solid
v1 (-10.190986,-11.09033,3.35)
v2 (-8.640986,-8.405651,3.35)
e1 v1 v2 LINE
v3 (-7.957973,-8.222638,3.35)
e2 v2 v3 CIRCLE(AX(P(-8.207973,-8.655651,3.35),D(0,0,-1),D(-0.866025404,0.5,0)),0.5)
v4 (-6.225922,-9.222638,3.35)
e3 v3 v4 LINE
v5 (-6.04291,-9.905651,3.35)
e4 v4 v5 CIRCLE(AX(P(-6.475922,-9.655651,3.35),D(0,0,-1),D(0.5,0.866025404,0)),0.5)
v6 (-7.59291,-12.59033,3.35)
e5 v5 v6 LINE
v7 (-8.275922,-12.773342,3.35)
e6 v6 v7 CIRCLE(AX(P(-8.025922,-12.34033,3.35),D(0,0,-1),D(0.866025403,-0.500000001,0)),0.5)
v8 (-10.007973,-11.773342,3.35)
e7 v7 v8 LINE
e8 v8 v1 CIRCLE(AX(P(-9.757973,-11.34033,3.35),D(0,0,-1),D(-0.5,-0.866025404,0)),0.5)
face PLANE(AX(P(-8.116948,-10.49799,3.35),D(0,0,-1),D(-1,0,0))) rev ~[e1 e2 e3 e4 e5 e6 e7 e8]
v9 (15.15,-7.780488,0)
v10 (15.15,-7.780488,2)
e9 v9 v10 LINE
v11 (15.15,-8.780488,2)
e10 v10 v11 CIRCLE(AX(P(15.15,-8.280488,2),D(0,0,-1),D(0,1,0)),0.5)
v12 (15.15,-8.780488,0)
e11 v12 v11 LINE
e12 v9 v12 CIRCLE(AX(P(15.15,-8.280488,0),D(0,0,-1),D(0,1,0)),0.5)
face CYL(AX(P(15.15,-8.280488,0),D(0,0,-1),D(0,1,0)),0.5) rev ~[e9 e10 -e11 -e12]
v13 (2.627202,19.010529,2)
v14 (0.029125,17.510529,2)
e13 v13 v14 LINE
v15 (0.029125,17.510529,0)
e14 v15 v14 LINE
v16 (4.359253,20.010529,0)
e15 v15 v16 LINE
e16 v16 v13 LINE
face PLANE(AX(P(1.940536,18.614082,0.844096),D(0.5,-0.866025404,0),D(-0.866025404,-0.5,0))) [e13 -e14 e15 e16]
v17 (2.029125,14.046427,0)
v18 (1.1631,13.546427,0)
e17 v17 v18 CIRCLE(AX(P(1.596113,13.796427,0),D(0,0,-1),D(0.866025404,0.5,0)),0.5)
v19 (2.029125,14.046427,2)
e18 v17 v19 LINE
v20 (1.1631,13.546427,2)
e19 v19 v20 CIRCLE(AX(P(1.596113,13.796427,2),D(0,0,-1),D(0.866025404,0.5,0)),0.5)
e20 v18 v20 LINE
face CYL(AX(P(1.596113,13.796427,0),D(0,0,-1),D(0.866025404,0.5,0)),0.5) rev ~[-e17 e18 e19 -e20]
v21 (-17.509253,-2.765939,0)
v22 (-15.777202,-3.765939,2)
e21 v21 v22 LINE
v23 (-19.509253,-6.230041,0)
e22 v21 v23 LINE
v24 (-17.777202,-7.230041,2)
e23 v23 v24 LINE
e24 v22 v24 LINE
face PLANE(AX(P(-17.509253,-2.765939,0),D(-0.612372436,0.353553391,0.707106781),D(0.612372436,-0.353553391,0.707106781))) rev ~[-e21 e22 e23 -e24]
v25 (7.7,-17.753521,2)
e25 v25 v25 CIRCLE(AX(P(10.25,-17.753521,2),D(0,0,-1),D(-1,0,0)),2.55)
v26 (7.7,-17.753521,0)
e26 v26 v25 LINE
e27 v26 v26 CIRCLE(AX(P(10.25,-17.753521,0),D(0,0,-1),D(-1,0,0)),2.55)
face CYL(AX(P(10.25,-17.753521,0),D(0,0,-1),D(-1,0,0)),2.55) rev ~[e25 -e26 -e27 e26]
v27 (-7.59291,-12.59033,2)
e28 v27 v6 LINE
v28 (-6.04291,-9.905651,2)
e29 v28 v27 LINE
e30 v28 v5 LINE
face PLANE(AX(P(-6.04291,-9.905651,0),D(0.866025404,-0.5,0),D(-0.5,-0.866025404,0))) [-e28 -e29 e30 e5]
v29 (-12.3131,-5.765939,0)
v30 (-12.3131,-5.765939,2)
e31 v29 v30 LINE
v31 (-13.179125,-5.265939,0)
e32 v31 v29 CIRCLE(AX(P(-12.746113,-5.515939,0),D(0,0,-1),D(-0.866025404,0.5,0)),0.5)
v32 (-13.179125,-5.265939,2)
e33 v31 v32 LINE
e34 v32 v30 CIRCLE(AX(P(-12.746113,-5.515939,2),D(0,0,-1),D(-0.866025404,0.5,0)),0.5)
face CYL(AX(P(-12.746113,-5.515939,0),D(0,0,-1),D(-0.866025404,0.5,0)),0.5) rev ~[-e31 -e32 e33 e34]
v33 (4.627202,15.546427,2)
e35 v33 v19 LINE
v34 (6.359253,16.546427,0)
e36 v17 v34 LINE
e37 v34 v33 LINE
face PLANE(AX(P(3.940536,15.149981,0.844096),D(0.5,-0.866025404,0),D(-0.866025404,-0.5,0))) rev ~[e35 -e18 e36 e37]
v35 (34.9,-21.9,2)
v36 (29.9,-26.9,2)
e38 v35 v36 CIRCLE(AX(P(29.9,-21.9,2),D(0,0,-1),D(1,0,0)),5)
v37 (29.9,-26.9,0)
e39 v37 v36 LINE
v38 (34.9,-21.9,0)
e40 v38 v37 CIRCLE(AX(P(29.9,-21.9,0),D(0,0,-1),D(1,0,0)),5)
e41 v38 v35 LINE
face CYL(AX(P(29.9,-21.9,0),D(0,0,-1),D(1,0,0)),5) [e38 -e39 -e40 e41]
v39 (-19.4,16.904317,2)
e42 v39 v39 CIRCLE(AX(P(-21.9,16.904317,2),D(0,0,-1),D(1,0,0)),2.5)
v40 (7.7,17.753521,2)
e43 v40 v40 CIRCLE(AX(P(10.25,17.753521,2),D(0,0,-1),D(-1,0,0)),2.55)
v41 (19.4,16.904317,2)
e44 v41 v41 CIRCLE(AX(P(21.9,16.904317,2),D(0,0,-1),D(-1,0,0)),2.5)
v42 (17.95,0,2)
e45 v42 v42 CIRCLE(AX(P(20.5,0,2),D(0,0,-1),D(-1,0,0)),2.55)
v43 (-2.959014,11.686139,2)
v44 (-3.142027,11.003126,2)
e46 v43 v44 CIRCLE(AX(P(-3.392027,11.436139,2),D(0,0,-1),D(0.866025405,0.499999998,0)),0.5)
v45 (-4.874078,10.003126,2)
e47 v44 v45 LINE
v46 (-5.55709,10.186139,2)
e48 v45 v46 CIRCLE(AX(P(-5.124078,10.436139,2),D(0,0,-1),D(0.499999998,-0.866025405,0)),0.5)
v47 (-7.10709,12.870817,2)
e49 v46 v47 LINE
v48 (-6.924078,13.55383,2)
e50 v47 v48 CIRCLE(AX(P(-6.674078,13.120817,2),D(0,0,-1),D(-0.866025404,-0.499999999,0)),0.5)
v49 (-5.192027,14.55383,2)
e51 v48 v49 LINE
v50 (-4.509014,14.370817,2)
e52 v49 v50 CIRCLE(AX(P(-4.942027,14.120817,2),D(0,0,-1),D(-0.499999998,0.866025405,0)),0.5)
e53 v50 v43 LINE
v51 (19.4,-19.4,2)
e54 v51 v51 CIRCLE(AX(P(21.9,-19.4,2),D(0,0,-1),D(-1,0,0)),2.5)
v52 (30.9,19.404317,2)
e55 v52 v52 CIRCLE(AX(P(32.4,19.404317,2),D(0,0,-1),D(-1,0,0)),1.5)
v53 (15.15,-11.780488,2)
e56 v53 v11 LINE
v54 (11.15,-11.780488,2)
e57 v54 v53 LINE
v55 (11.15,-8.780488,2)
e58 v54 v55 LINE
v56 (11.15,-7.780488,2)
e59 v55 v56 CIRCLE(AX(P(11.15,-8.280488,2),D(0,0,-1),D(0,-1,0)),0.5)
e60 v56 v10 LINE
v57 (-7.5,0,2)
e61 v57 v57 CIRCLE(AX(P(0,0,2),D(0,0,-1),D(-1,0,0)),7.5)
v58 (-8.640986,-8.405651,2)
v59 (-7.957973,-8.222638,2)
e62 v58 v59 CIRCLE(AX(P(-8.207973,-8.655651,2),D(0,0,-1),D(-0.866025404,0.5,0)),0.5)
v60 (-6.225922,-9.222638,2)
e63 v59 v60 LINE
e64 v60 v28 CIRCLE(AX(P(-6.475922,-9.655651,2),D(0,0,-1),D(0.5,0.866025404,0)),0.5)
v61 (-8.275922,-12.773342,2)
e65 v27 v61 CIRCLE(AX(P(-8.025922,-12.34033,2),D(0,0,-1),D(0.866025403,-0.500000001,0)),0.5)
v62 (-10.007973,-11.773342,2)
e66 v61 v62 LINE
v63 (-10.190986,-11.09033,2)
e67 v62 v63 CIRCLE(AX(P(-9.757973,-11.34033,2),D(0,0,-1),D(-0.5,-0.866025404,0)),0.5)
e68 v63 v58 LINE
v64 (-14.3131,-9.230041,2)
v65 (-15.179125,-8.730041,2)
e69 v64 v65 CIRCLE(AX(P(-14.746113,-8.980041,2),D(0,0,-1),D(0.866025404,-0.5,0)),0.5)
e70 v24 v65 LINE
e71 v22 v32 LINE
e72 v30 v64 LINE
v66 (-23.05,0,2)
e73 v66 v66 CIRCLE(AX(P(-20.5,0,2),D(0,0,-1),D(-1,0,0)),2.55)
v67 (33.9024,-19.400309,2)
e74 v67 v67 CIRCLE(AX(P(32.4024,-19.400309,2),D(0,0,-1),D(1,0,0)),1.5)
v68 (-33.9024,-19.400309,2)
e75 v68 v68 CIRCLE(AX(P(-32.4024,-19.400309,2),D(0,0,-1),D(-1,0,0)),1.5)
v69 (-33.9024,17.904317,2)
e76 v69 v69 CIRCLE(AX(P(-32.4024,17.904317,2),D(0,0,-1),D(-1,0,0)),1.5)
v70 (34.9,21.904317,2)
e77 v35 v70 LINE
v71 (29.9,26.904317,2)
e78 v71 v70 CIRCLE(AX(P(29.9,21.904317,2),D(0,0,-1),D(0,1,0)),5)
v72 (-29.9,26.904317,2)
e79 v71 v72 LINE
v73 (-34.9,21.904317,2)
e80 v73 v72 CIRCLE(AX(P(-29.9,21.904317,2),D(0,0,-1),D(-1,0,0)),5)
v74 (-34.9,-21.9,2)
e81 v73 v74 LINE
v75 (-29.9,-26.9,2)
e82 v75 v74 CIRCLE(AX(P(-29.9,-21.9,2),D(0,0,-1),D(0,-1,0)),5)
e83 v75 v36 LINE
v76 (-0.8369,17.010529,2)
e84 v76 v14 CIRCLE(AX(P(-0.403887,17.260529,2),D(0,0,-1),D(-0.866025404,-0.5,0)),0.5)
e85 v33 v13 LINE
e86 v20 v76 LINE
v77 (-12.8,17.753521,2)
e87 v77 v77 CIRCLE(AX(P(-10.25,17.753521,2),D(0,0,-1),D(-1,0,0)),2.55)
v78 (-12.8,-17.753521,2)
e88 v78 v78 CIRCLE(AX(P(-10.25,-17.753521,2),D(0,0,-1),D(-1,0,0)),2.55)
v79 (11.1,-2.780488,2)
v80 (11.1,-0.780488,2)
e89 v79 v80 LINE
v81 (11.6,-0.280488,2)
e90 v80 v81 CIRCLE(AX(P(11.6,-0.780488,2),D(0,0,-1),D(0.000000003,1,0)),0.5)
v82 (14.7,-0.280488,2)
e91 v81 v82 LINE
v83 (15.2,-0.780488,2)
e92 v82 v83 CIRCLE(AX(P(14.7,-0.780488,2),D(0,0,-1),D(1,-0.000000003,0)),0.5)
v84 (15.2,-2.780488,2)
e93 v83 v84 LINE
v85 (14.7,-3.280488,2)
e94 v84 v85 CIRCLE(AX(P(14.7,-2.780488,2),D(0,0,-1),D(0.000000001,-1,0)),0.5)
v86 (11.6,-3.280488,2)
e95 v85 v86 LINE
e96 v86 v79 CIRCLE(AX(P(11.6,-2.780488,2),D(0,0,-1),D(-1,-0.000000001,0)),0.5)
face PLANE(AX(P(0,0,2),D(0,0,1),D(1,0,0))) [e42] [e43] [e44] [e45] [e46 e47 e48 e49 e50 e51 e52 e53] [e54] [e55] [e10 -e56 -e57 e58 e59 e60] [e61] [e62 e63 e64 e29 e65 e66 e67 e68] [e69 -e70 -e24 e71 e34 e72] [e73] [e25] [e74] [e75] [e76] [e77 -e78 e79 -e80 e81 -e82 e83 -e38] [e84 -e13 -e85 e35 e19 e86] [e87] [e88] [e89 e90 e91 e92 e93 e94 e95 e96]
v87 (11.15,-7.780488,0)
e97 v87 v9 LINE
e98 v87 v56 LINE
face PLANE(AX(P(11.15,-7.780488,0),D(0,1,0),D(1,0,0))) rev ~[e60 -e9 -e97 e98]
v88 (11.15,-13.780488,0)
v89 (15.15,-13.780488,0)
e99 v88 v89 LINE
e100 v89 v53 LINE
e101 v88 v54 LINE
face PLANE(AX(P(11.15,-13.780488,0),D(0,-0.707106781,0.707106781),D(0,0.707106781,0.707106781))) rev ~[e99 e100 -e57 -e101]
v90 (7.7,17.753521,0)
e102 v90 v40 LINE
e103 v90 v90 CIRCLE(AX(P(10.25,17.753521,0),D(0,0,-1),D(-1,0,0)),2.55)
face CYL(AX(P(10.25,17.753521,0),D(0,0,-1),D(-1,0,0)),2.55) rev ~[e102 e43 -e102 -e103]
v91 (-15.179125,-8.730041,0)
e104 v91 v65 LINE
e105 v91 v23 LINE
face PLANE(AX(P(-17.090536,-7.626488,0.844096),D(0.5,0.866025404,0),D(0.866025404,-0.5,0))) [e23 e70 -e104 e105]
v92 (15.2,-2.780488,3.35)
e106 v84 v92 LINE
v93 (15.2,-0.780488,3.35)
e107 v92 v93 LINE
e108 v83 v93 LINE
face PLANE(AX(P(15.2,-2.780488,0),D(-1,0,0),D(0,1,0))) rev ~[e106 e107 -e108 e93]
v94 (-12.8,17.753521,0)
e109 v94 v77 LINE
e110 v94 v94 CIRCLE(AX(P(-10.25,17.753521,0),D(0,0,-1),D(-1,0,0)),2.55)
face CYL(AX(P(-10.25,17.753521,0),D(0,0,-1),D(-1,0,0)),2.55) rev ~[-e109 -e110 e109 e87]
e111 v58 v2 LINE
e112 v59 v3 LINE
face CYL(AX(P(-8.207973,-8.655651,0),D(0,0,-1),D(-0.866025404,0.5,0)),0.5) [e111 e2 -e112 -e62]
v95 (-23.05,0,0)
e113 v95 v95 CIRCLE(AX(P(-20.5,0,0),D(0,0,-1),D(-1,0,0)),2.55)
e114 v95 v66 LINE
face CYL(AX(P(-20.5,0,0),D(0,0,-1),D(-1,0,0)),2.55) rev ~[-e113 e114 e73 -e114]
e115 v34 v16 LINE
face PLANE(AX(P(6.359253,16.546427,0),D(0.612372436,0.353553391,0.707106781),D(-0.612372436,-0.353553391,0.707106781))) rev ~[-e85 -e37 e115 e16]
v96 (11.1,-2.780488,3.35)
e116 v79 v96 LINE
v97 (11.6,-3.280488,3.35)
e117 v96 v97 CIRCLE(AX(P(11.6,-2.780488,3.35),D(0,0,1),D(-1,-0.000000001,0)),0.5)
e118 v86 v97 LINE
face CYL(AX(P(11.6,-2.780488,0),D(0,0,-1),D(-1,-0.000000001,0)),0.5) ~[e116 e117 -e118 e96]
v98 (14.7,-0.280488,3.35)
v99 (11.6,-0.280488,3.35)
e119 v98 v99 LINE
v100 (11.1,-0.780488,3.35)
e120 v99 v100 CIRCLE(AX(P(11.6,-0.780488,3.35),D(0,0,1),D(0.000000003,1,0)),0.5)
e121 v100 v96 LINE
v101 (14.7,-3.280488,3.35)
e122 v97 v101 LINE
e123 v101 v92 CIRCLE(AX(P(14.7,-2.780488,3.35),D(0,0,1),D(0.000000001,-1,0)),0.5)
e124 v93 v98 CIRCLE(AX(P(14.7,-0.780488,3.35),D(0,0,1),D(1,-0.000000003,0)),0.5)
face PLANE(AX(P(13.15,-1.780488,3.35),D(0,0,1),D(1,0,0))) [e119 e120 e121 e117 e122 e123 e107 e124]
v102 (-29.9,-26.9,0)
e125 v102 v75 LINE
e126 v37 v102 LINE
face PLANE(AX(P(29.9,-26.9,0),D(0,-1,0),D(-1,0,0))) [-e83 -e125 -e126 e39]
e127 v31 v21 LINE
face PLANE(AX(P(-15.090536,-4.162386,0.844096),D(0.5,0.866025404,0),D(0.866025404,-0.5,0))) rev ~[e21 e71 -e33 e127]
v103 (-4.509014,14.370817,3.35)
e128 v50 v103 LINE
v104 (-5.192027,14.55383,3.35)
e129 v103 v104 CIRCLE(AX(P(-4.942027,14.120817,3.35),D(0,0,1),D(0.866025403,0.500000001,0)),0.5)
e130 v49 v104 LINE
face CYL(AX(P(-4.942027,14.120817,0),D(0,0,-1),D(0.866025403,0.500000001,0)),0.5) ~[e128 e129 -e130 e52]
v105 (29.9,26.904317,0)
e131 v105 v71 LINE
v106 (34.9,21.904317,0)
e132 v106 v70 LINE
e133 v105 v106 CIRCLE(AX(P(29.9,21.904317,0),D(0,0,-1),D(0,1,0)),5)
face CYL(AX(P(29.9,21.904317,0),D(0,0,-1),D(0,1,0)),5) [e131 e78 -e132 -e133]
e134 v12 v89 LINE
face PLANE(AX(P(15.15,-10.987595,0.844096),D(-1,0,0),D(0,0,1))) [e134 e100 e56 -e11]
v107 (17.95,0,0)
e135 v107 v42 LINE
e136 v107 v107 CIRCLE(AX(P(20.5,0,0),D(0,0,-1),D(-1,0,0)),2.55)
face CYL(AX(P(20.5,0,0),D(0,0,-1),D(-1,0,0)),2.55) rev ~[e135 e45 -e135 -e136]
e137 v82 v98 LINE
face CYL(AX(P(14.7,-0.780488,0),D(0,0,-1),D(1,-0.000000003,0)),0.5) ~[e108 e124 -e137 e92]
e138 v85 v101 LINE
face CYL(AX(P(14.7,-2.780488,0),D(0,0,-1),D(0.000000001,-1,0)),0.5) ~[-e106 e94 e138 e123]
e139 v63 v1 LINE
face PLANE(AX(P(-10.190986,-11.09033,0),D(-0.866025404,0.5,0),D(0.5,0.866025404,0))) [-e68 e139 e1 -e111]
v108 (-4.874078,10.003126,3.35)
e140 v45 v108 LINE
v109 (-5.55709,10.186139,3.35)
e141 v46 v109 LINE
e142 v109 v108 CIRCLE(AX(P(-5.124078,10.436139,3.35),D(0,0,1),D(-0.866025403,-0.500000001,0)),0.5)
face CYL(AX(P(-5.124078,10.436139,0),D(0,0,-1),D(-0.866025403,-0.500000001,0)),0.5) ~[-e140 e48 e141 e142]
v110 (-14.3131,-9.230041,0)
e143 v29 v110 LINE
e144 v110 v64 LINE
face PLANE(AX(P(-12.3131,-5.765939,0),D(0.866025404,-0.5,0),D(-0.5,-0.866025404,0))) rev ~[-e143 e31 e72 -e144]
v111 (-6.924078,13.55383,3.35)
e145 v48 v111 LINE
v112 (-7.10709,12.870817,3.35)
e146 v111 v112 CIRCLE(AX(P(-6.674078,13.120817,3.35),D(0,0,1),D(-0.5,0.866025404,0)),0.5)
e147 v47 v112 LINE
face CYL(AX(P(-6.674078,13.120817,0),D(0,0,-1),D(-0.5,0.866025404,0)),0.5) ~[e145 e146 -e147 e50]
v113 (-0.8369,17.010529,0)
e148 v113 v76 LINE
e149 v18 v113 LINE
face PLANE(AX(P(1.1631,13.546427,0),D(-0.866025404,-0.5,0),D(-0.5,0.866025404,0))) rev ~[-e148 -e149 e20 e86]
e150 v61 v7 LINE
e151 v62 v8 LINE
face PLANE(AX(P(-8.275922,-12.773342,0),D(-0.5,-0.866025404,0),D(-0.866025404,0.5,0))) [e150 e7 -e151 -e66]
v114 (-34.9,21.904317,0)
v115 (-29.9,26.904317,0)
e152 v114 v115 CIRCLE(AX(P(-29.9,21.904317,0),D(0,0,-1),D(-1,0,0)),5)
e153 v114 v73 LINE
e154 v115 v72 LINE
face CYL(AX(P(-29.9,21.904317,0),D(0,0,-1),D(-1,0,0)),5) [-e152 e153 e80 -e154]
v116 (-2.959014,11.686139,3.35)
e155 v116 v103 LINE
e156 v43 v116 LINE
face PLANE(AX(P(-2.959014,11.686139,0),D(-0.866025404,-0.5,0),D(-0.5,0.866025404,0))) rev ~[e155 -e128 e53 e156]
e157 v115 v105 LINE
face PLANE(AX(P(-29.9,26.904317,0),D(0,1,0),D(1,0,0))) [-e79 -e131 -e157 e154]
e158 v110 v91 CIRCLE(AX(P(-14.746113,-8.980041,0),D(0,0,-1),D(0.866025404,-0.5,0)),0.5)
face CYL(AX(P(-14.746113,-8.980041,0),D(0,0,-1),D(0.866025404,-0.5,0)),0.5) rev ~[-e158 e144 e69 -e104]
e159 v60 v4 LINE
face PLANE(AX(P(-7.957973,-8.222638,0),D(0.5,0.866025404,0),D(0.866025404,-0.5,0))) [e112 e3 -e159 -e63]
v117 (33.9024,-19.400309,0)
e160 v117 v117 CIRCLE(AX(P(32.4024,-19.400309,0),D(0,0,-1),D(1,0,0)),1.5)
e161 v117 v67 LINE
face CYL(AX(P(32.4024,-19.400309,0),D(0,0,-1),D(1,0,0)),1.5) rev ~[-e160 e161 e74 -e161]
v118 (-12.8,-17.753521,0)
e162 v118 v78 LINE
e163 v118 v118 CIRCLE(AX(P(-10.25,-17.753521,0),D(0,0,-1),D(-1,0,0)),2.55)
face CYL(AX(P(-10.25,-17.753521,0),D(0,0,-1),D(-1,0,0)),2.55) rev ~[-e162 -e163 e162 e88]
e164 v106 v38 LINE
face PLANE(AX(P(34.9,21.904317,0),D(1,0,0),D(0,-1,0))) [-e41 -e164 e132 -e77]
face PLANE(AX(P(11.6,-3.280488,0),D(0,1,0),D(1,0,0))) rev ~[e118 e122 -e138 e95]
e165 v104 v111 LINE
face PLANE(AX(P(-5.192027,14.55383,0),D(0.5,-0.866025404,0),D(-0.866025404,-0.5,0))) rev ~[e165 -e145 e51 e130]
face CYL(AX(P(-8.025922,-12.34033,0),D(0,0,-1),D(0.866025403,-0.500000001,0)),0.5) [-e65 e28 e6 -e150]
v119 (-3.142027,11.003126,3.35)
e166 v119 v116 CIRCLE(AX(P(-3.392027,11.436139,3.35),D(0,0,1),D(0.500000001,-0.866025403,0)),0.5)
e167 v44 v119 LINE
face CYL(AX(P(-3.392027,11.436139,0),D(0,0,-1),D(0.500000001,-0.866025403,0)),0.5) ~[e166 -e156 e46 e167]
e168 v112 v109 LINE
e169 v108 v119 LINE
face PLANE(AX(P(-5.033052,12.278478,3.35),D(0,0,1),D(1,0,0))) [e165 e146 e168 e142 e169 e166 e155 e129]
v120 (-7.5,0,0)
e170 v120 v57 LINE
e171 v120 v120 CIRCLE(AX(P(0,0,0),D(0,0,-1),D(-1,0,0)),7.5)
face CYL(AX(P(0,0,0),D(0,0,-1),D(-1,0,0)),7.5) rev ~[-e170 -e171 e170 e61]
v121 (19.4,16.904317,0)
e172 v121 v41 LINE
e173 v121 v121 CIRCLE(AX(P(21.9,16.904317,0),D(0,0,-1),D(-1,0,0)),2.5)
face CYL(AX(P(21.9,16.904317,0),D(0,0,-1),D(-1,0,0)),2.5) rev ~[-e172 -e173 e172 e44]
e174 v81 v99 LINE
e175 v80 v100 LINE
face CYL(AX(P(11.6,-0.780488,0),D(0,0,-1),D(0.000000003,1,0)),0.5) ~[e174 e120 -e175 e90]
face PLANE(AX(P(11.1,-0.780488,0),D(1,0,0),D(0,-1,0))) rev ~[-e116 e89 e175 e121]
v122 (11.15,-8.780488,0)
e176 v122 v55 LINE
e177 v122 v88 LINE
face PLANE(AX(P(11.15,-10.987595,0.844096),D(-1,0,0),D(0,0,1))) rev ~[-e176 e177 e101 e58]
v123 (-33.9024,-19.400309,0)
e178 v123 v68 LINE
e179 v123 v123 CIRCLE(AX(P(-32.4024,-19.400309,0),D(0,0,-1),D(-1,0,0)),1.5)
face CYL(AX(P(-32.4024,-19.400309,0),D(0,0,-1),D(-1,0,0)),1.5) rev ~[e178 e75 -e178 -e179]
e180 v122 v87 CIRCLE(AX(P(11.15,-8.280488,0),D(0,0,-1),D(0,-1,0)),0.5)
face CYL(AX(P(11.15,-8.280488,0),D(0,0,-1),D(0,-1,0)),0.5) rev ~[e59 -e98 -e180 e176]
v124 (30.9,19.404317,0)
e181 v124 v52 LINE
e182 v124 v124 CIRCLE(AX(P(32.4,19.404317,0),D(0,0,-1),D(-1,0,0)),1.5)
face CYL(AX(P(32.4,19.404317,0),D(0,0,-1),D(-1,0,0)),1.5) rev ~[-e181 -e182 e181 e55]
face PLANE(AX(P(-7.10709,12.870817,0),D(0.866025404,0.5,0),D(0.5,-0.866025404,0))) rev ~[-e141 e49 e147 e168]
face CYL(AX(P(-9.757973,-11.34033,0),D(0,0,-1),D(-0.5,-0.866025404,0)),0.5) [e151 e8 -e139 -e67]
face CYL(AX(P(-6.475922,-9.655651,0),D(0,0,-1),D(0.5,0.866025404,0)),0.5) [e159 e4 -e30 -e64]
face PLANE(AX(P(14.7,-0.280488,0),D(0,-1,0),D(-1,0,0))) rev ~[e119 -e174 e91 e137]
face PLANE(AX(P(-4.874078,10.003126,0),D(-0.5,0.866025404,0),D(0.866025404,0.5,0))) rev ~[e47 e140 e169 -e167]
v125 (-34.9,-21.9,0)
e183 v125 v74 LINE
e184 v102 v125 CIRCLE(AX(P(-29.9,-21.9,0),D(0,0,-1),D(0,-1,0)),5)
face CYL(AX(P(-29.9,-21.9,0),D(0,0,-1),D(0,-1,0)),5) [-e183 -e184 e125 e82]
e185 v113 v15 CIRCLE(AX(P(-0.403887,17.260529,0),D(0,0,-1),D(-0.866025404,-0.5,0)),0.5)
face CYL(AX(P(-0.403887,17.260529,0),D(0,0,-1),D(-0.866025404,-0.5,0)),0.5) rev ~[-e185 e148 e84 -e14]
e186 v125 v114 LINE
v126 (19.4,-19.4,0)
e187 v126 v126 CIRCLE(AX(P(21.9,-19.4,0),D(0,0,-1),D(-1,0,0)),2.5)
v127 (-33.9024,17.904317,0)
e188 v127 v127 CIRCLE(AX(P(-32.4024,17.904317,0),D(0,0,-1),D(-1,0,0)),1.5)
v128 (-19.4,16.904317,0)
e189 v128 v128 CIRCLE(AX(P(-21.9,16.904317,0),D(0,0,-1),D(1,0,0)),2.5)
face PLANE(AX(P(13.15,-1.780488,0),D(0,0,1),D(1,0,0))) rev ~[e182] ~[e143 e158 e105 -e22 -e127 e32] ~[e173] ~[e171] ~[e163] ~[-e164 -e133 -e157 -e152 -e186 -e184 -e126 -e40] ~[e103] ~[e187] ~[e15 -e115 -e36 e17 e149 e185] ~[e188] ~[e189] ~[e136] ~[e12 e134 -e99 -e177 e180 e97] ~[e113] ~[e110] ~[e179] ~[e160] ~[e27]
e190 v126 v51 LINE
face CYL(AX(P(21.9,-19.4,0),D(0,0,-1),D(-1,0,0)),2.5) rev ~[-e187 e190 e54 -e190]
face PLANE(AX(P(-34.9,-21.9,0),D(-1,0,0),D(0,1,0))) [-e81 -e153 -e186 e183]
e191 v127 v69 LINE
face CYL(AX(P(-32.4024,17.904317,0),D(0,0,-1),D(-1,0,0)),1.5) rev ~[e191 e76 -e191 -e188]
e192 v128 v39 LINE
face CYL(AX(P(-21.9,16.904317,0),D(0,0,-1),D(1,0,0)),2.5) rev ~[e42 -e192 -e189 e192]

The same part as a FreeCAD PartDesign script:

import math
import FreeCAD as App
import Part
import Sketcher
from FreeCAD import Vector
Q = App.Units.Quantity

doc = App.newDocument("Part")
body = doc.addObject("PartDesign::Body", "Body")

# Sketch on XY plane
sketch1 = body.newObject("Sketcher::SketchObject", "Sketch")
sketch1.AttachmentSupport = (doc.getObject("XY_Plane"), [""])
sketch1.MapMode = "FlatFace"
sketch1.addGeometry(Part.LineSegment(Vector(-38, 30, 0), Vector(-38, -30, 0)), False)
sketch1.addGeometry(Part.LineSegment(Vector(-38, -30, 0), Vector(38, -30, 0)), False)
sketch1.addGeometry(Part.LineSegment(Vector(38, -30, 0), Vector(38, 30, 0)), False)
sketch1.addGeometry(Part.LineSegment(Vector(38, 30, 0), Vector(-38, 30, 0)), False)
sketch1.addGeometry(Part.LineSegment(Vector(-8, -8.2, 0), Vector(-6.2, -9.2, 0)), False)
sketch1.addGeometry(Part.ArcOfCircle(Part.Circle(Vector(-6.5, -9.7, 0), Vector(0, 0, 1), 0.5), math.radians(-30), math.radians(60)), False)
sketch1.addGeometry(Part.LineSegment(Vector(-6, -9.9, 0), Vector(-7.6, -12.6, 0)), False)
sketch1.addGeometry(Part.ArcOfCircle(Part.Circle(Vector(-8, -12.3, 0), Vector(0, 0, 1), 0.5), math.radians(-120), math.radians(-30)), False)
sketch1.addGeometry(Part.LineSegment(Vector(-8.3, -12.8, 0), Vector(-10, -11.8, 0)), False)
sketch1.addGeometry(Part.ArcOfCircle(Part.Circle(Vector(-9.8, -11.3, 0), Vector(0, 0, 1), 0.5), math.radians(150), math.radians(240)), False)
sketch1.addGeometry(Part.LineSegment(Vector(-10.2, -11.1, 0), Vector(-8.6, -8.4, 0)), False)
sketch1.addGeometry(Part.ArcOfCircle(Part.Circle(Vector(-8.2, -8.7, 0), Vector(0, 0, 1), 0.5), math.radians(60), math.radians(150)), False)
sketch1.addGeometry(Part.ArcOfCircle(Part.Circle(Vector(-12.7, -5.5, 0), Vector(0, 0, 1), 0.5), math.radians(-30), math.radians(150)), False)
sketch1.addGeometry(Part.LineSegment(Vector(-12.3, -5.8, 0), Vector(-14.3, -9.2, 0)), False)
sketch1.addGeometry(Part.ArcOfCircle(Part.Circle(Vector(-14.7, -9, 0), Vector(0, 0, 1), 0.5), math.radians(150), math.radians(330)), False)
sketch1.addGeometry(Part.LineSegment(Vector(-15.2, -8.7, 0), Vector(-13.2, -5.3, 0)), False)
sketch1.addGeometry(Part.LineSegment(Vector(15.2, -8.8, 0), Vector(11.2, -8.8, 0)), False)
sketch1.addGeometry(Part.ArcOfCircle(Part.Circle(Vector(11.2, -8.3, 0), Vector(0, 0, 1), 0.5), math.radians(90), math.radians(270)), False)
sketch1.addGeometry(Part.LineSegment(Vector(11.2, -7.8, 0), Vector(15.2, -7.8, 0)), False)
sketch1.addGeometry(Part.ArcOfCircle(Part.Circle(Vector(15.2, -8.3, 0), Vector(0, 0, 1), 0.5), math.radians(-90), math.radians(90)), False)
sketch1.addGeometry(Part.ArcOfCircle(Part.Circle(Vector(-5.1, 10.4, 0), Vector(0, 0, 1), 0.5), math.radians(-150), math.radians(-60)), False)
sketch1.addGeometry(Part.LineSegment(Vector(-5.6, 10.2, 0), Vector(-7.1, 12.9, 0)), False)
sketch1.addGeometry(Part.ArcOfCircle(Part.Circle(Vector(-6.7, 13.1, 0), Vector(0, 0, 1), 0.5), math.radians(120), math.radians(210)), False)
sketch1.addGeometry(Part.LineSegment(Vector(-6.9, 13.6, 0), Vector(-5.2, 14.6, 0)), False)
sketch1.addGeometry(Part.ArcOfCircle(Part.Circle(Vector(-4.9, 14.1, 0), Vector(0, 0, 1), 0.5), math.radians(30), math.radians(120)), False)
sketch1.addGeometry(Part.LineSegment(Vector(-4.5, 14.4, 0), Vector(-3, 11.7, 0)), False)
sketch1.addGeometry(Part.ArcOfCircle(Part.Circle(Vector(-3.4, 11.4, 0), Vector(0, 0, 1), 0.5), math.radians(-60), math.radians(30)), False)
sketch1.addGeometry(Part.LineSegment(Vector(-3.1, 11, 0), Vector(-4.9, 10, 0)), False)
sketch1.addGeometry(Part.ArcOfCircle(Part.Circle(Vector(1.6, 13.8, 0), Vector(0, 0, 1), 0.5), math.radians(-150), math.radians(30)), False)
sketch1.addGeometry(Part.LineSegment(Vector(1.2, 13.5, 0), Vector(-0.8, 17, 0)), False)
sketch1.addGeometry(Part.ArcOfCircle(Part.Circle(Vector(-0.4, 17.3, 0), Vector(0, 0, 1), 0.5), math.radians(30), math.radians(210)), False)
sketch1.addGeometry(Part.LineSegment(Vector(0, 17.5, 0), Vector(2, 14, 0)), False)
sketch1.addConstraint(Sketcher.Constraint("Coincident", 0, 2, 1, 1))
sketch1.addConstraint(Sketcher.Constraint("Coincident", 1, 2, 2, 1))
sketch1.addConstraint(Sketcher.Constraint("Coincident", 2, 2, 3, 1))
sketch1.addConstraint(Sketcher.Constraint("Coincident", 3, 2, 0, 1))
sketch1.addConstraint(Sketcher.Constraint("Tangent", 4, 2, 5, 2))
sketch1.addConstraint(Sketcher.Constraint("Tangent", 5, 1, 6, 1))
sketch1.addConstraint(Sketcher.Constraint("Tangent", 6, 2, 7, 2))
sketch1.addConstraint(Sketcher.Constraint("Tangent", 7, 1, 8, 1))
sketch1.addConstraint(Sketcher.Constraint("Tangent", 8, 2, 9, 2))
sketch1.addConstraint(Sketcher.Constraint("Tangent", 9, 1, 10, 1))
sketch1.addConstraint(Sketcher.Constraint("Tangent", 10, 2, 11, 2))
sketch1.addConstraint(Sketcher.Constraint("Tangent", 11, 1, 4, 1))
sketch1.addConstraint(Sketcher.Constraint("Tangent", 12, 1, 13, 1))
sketch1.addConstraint(Sketcher.Constraint("Tangent", 13, 2, 14, 2))
sketch1.addConstraint(Sketcher.Constraint("Tangent", 14, 1, 15, 1))
sketch1.addConstraint(Sketcher.Constraint("Tangent", 15, 2, 12, 2))
sketch1.addConstraint(Sketcher.Constraint("Tangent", 16, 2, 17, 2))
sketch1.addConstraint(Sketcher.Constraint("Tangent", 17, 1, 18, 1))
sketch1.addConstraint(Sketcher.Constraint("Tangent", 18, 2, 19, 2))
sketch1.addConstraint(Sketcher.Constraint("Tangent", 19, 1, 16, 1))
sketch1.addConstraint(Sketcher.Constraint("Tangent", 20, 1, 21, 1))
sketch1.addConstraint(Sketcher.Constraint("Tangent", 21, 2, 22, 2))
sketch1.addConstraint(Sketcher.Constraint("Tangent", 22, 1, 23, 1))
sketch1.addConstraint(Sketcher.Constraint("Tangent", 23, 2, 24, 2))
sketch1.addConstraint(Sketcher.Constraint("Tangent", 24, 1, 25, 1))
sketch1.addConstraint(Sketcher.Constraint("Tangent", 25, 2, 26, 2))
sketch1.addConstraint(Sketcher.Constraint("Tangent", 26, 1, 27, 1))
sketch1.addConstraint(Sketcher.Constraint("Tangent", 27, 2, 20, 2))
sketch1.addConstraint(Sketcher.Constraint("Tangent", 28, 1, 29, 1))
sketch1.addConstraint(Sketcher.Constraint("Tangent", 29, 2, 30, 2))
sketch1.addConstraint(Sketcher.Constraint("Tangent", 30, 1, 31, 1))
sketch1.addConstraint(Sketcher.Constraint("Tangent", 31, 2, 28, 2))
sketch1.addConstraint(Sketcher.Constraint("Vertical", 0))
sketch1.addConstraint(Sketcher.Constraint("Horizontal", 1))
sketch1.addConstraint(Sketcher.Constraint("Vertical", 2))
sketch1.addConstraint(Sketcher.Constraint("Horizontal", 3))
sketch1.addConstraint(Sketcher.Constraint("Horizontal", 16))
sketch1.addConstraint(Sketcher.Constraint("Horizontal", 18))
sketch1.addConstraint(Sketcher.Constraint("Equal", 5, 7))
sketch1.addConstraint(Sketcher.Constraint("Equal", 7, 9))
sketch1.addConstraint(Sketcher.Constraint("Equal", 9, 11))
sketch1.addConstraint(Sketcher.Constraint("Equal", 11, 12))
sketch1.addConstraint(Sketcher.Constraint("Equal", 12, 14))
sketch1.addConstraint(Sketcher.Constraint("Equal", 14, 17))
sketch1.addConstraint(Sketcher.Constraint("Equal", 19, 20))
sketch1.addConstraint(Sketcher.Constraint("Equal", 20, 22))
sketch1.addConstraint(Sketcher.Constraint("Equal", 22, 24))
sketch1.addConstraint(Sketcher.Constraint("Equal", 24, 26))
sketch1.addConstraint(Sketcher.Constraint("Equal", 26, 28))
sketch1.addConstraint(Sketcher.Constraint("Equal", 28, 30))
sketch1.addConstraint(Sketcher.Constraint("Symmetric", 0, 2, 2, 2, -1, 1))
sketch1.addConstraint(Sketcher.Constraint("Perpendicular", 4, 6))
sketch1.addConstraint(Sketcher.Constraint("Perpendicular", 6, 8))
sketch1.addConstraint(Sketcher.Constraint("Perpendicular", 8, 10))
sketch1.addConstraint(Sketcher.Constraint("Parallel", 10, 13))
sketch1.addConstraint(Sketcher.Constraint("Perpendicular", 21, 23))
sketch1.addConstraint(Sketcher.Constraint("Perpendicular", 23, 25))
sketch1.addConstraint(Sketcher.Constraint("Perpendicular", 25, 27))
sketch1.addConstraint(Sketcher.Constraint("Perpendicular", 27, 29))
sketch1.addConstraint(Sketcher.Constraint("Equal", 10, 21))
sketch1.addConstraint(Sketcher.Constraint("Equal", 8, 23))
sketch1.addConstraint(Sketcher.Constraint("Equal", 15, 29))
sketch1.addConstraint(Sketcher.Constraint("Radius", 5, Q("0.5 mm")))
sketch1.addConstraint(Sketcher.Constraint("DistanceX", 1, 1, 1, 2, Q("76 mm")))
sketch1.addConstraint(Sketcher.Constraint("DistanceX", 16, 2, 16, 1, Q("4 mm")))
sketch1.addConstraint(Sketcher.Constraint("DistanceY", 0, 2, 0, 1, Q("60 mm")))
sketch1.addConstraint(Sketcher.Constraint("Angle", 4, Q("-30 deg")))
sketch1.addConstraint(Sketcher.Constraint("Angle", 21, Q("120 deg")))
sketch1.addConstraint(Sketcher.Constraint("Distance", 4, Q("2 mm")))
sketch1.addConstraint(Sketcher.Constraint("Distance", 13, Q("4 mm")))
sketch1.addConstraint(Sketcher.Constraint("Distance", 6, Q("3.1 mm")))
sketch1.addConstraint(Sketcher.Constraint("DistanceX", -1, 1, 17, 3, Q("11.15 mm")))
sketch1.addConstraint(Sketcher.Constraint("DistanceX", 12, 1, -1, 1, Q("12.3131 mm")))
sketch1.addConstraint(Sketcher.Constraint("DistanceX", -1, 1, 28, 1, Q("1.1631 mm")))
sketch1.addConstraint(Sketcher.Constraint("DistanceY", 4, 2, 12, 3, Q("3.706699 mm")))
sketch1.addConstraint(Sketcher.Constraint("DistanceY", 26, 1, 28, 1, Q("2.543301 mm")))
sketch1.addConstraint(Sketcher.Constraint("DistanceY", 5, 3, -1, 1, Q("9.655651 mm")))
sketch1.addConstraint(Sketcher.Constraint("DistanceY", -1, 1, 20, 3, Q("10.436139 mm")))
sketch1.addConstraint(Sketcher.Constraint("DistanceX", 5, 1, -1, 1, Q("6.04291 mm")))
sketch1.addConstraint(Sketcher.Constraint("DistanceX", 20, 1, -1, 1, Q("5.55709 mm")))
sketch1.addConstraint(Sketcher.Constraint("DistanceY", 7, 3, 17, 3, Q("4.059842 mm")))
pad1 = body.newObject("PartDesign::Pad", "Pad")
pad1.Profile = sketch1
pad1.Length = 2

# Sketch on XY plane
sketch2 = body.newObject("Sketcher::SketchObject", "Sketch001")
sketch2.AttachmentSupport = (doc.getObject("XY_Plane"), [""])
sketch2.MapMode = "FlatFace"
sketch2.addGeometry(Part.LineSegment(Vector(14.7, -0.28, 0), Vector(11.6, -0.28, 0)), False)
sketch2.addGeometry(Part.ArcOfCircle(Part.Circle(Vector(11.6, -0.78, 0), Vector(0, 0, 1), 0.5), math.radians(90), math.radians(180)), False)
sketch2.addGeometry(Part.LineSegment(Vector(11.1, -0.78, 0), Vector(11.1, -2.78, 0)), False)
sketch2.addGeometry(Part.ArcOfCircle(Part.Circle(Vector(11.6, -2.78, 0), Vector(0, 0, 1), 0.5), math.radians(180), math.radians(270)), False)
sketch2.addGeometry(Part.LineSegment(Vector(11.6, -3.28, 0), Vector(14.7, -3.28, 0)), False)
sketch2.addGeometry(Part.ArcOfCircle(Part.Circle(Vector(14.7, -2.78, 0), Vector(0, 0, 1), 0.5), math.radians(-90), math.radians(0)), False)
sketch2.addGeometry(Part.LineSegment(Vector(15.2, -2.78, 0), Vector(15.2, -0.78, 0)), False)
sketch2.addGeometry(Part.ArcOfCircle(Part.Circle(Vector(14.7, -0.78, 0), Vector(0, 0, 1), 0.5), math.radians(0), math.radians(90)), False)
sketch2.addGeometry(Part.LineSegment(Vector(-7.11, 12.87, 0), Vector(-5.56, 10.19, 0)), False)
sketch2.addGeometry(Part.ArcOfCircle(Part.Circle(Vector(-5.12, 10.44, 0), Vector(0, 0, 1), 0.5), math.radians(-150), math.radians(-60)), False)
sketch2.addGeometry(Part.LineSegment(Vector(-4.87, 10, 0), Vector(-3.14, 11, 0)), False)
sketch2.addGeometry(Part.ArcOfCircle(Part.Circle(Vector(-3.39, 11.44, 0), Vector(0, 0, 1), 0.5), math.radians(-60), math.radians(30)), False)
sketch2.addGeometry(Part.LineSegment(Vector(-2.96, 11.69, 0), Vector(-4.51, 14.37, 0)), False)
sketch2.addGeometry(Part.ArcOfCircle(Part.Circle(Vector(-4.94, 14.12, 0), Vector(0, 0, 1), 0.5), math.radians(30), math.radians(120)), False)
sketch2.addGeometry(Part.LineSegment(Vector(-5.19, 14.55, 0), Vector(-6.92, 13.55, 0)), False)
sketch2.addGeometry(Part.ArcOfCircle(Part.Circle(Vector(-6.67, 13.12, 0), Vector(0, 0, 1), 0.5), math.radians(120), math.radians(210)), False)
sketch2.addGeometry(Part.LineSegment(Vector(-7.59, -12.59, 0), Vector(-6.04, -9.91, 0)), False)
sketch2.addGeometry(Part.ArcOfCircle(Part.Circle(Vector(-6.48, -9.66, 0), Vector(0, 0, 1), 0.5), math.radians(-30), math.radians(60)), False)
sketch2.addGeometry(Part.LineSegment(Vector(-6.23, -9.22, 0), Vector(-7.96, -8.22, 0)), False)
sketch2.addGeometry(Part.ArcOfCircle(Part.Circle(Vector(-8.21, -8.66, 0), Vector(0, 0, 1), 0.5), math.radians(60), math.radians(150)), False)
sketch2.addGeometry(Part.LineSegment(Vector(-8.64, -8.41, 0), Vector(-10.19, -11.09, 0)), False)
sketch2.addGeometry(Part.ArcOfCircle(Part.Circle(Vector(-9.76, -11.34, 0), Vector(0, 0, 1), 0.5), math.radians(150), math.radians(240)), False)
sketch2.addGeometry(Part.LineSegment(Vector(-10.01, -11.77, 0), Vector(-8.28, -12.77, 0)), False)
sketch2.addGeometry(Part.ArcOfCircle(Part.Circle(Vector(-8.03, -12.34, 0), Vector(0, 0, 1), 0.5), math.radians(-120), math.radians(-30)), False)
sketch2.addConstraint(Sketcher.Constraint("Tangent", 0, 2, 1, 1))
sketch2.addConstraint(Sketcher.Constraint("Tangent", 1, 2, 2, 1))
sketch2.addConstraint(Sketcher.Constraint("Tangent", 2, 2, 3, 1))
sketch2.addConstraint(Sketcher.Constraint("Tangent", 3, 2, 4, 1))
sketch2.addConstraint(Sketcher.Constraint("Tangent", 4, 2, 5, 1))
sketch2.addConstraint(Sketcher.Constraint("Tangent", 5, 2, 6, 1))
sketch2.addConstraint(Sketcher.Constraint("Tangent", 6, 2, 7, 1))
sketch2.addConstraint(Sketcher.Constraint("Tangent", 7, 2, 0, 1))
sketch2.addConstraint(Sketcher.Constraint("Tangent", 8, 2, 9, 1))
sketch2.addConstraint(Sketcher.Constraint("Tangent", 9, 2, 10, 1))
sketch2.addConstraint(Sketcher.Constraint("Tangent", 10, 2, 11, 1))
sketch2.addConstraint(Sketcher.Constraint("Tangent", 11, 2, 12, 1))
sketch2.addConstraint(Sketcher.Constraint("Tangent", 12, 2, 13, 1))
sketch2.addConstraint(Sketcher.Constraint("Tangent", 13, 2, 14, 1))
sketch2.addConstraint(Sketcher.Constraint("Tangent", 14, 2, 15, 1))
sketch2.addConstraint(Sketcher.Constraint("Tangent", 15, 2, 8, 1))
sketch2.addConstraint(Sketcher.Constraint("Tangent", 16, 2, 17, 1))
sketch2.addConstraint(Sketcher.Constraint("Tangent", 17, 2, 18, 1))
sketch2.addConstraint(Sketcher.Constraint("Tangent", 18, 2, 19, 1))
sketch2.addConstraint(Sketcher.Constraint("Tangent", 19, 2, 20, 1))
sketch2.addConstraint(Sketcher.Constraint("Tangent", 20, 2, 21, 1))
sketch2.addConstraint(Sketcher.Constraint("Tangent", 21, 2, 22, 1))
sketch2.addConstraint(Sketcher.Constraint("Tangent", 22, 2, 23, 1))
sketch2.addConstraint(Sketcher.Constraint("Tangent", 23, 2, 16, 1))
sketch2.addConstraint(Sketcher.Constraint("Horizontal", 0))
sketch2.addConstraint(Sketcher.Constraint("Vertical", 2))
sketch2.addConstraint(Sketcher.Constraint("Horizontal", 4))
sketch2.addConstraint(Sketcher.Constraint("Vertical", 6))
sketch2.addConstraint(Sketcher.Constraint("Equal", 1, 3))
sketch2.addConstraint(Sketcher.Constraint("Equal", 3, 5))
sketch2.addConstraint(Sketcher.Constraint("Equal", 5, 7))
sketch2.addConstraint(Sketcher.Constraint("Equal", 7, 9))
sketch2.addConstraint(Sketcher.Constraint("Equal", 9, 11))
sketch2.addConstraint(Sketcher.Constraint("Equal", 11, 13))
sketch2.addConstraint(Sketcher.Constraint("Equal", 13, 15))
sketch2.addConstraint(Sketcher.Constraint("Equal", 15, 17))
sketch2.addConstraint(Sketcher.Constraint("Equal", 17, 19))
sketch2.addConstraint(Sketcher.Constraint("Equal", 19, 21))
sketch2.addConstraint(Sketcher.Constraint("Equal", 21, 23))
sketch2.addConstraint(Sketcher.Constraint("Perpendicular", 8, 10))
sketch2.addConstraint(Sketcher.Constraint("Perpendicular", 10, 12))
sketch2.addConstraint(Sketcher.Constraint("Perpendicular", 12, 14))
sketch2.addConstraint(Sketcher.Constraint("Perpendicular", 16, 18))
sketch2.addConstraint(Sketcher.Constraint("Perpendicular", 18, 20))
sketch2.addConstraint(Sketcher.Constraint("Perpendicular", 20, 22))
sketch2.addConstraint(Sketcher.Constraint("Equal", 12, 16))
sketch2.addConstraint(Sketcher.Constraint("Equal", 14, 18))
sketch2.addConstraint(Sketcher.Constraint("Radius", 1, Q("0.5 mm")))
sketch2.addConstraint(Sketcher.Constraint("DistanceY", 2, 2, 2, 1, Q("2 mm")))
sketch2.addConstraint(Sketcher.Constraint("Angle", 8, Q("-60 deg")))
sketch2.addConstraint(Sketcher.Constraint("Angle", 16, Q("60 deg")))
sketch2.addConstraint(Sketcher.Constraint("Distance", 10, Q("2 mm")))
sketch2.addConstraint(Sketcher.Constraint("DistanceX", 0, 2, 0, 1, Q("3.1 mm")))
sketch2.addConstraint(Sketcher.Constraint("Distance", 8, Q("3.1 mm")))
sketch2.addConstraint(Sketcher.Constraint("DistanceX", -1, 1, 1, 3, Q("11.6 mm")))
sketch2.addConstraint(Sketcher.Constraint("DistanceY", -1, 1, 9, 3, Q("10.436139 mm")))
sketch2.addConstraint(Sketcher.Constraint("DistanceY", 17, 3, -1, 1, Q("9.655651 mm")))
sketch2.addConstraint(Sketcher.Constraint("DistanceX", 8, 2, -1, 1, Q("5.55709 mm")))
sketch2.addConstraint(Sketcher.Constraint("DistanceX", 16, 2, -1, 1, Q("6.04291 mm")))
sketch2.addConstraint(Sketcher.Constraint("DistanceY", 21, 3, 3, 3, Q("8.559842 mm")))
pad2 = body.newObject("PartDesign::Pad", "Pad001")
pad2.Profile = sketch2
pad2.Length = 3.35

# Sketch on XY plane
sketch3 = body.newObject("Sketcher::SketchObject", "Sketch002")
sketch3.AttachmentSupport = (doc.getObject("XY_Plane"), [""])
sketch3.MapMode = "FlatFace"
sketch3.addGeometry(Part.LineSegment(Vector(38, 30, 0), Vector(38, -30, 0)), False)
sketch3.addGeometry(Part.LineSegment(Vector(38, -30, 0), Vector(-38, -30, 0)), False)
sketch3.addGeometry(Part.LineSegment(Vector(-38, -30, 0), Vector(-38, 30, 0)), False)
sketch3.addGeometry(Part.LineSegment(Vector(-38, 30, 0), Vector(38, 30, 0)), False)
sketch3.addGeometry(Part.ArcOfCircle(Part.Circle(Vector(30, 22, 0), Vector(0, 0, 1), 5), math.radians(0), math.radians(90)), False)
sketch3.addGeometry(Part.LineSegment(Vector(30, 27, 0), Vector(-30, 27, 0)), False)
sketch3.addGeometry(Part.ArcOfCircle(Part.Circle(Vector(-30, 22, 0), Vector(0, 0, 1), 5), math.radians(90), math.radians(180)), False)
sketch3.addGeometry(Part.LineSegment(Vector(-35, 22, 0), Vector(-35, -22, 0)), False)
sketch3.addGeometry(Part.ArcOfCircle(Part.Circle(Vector(-30, -22, 0), Vector(0, 0, 1), 5), math.radians(180), math.radians(270)), False)
sketch3.addGeometry(Part.LineSegment(Vector(-30, -27, 0), Vector(30, -27, 0)), False)
sketch3.addGeometry(Part.ArcOfCircle(Part.Circle(Vector(30, -22, 0), Vector(0, 0, 1), 5), math.radians(-90), math.radians(0)), False)
sketch3.addGeometry(Part.LineSegment(Vector(35, -22, 0), Vector(35, 22, 0)), False)
sketch3.addConstraint(Sketcher.Constraint("Coincident", 0, 2, 1, 1))
sketch3.addConstraint(Sketcher.Constraint("Coincident", 1, 2, 2, 1))
sketch3.addConstraint(Sketcher.Constraint("Coincident", 2, 2, 3, 1))
sketch3.addConstraint(Sketcher.Constraint("Coincident", 3, 2, 0, 1))
sketch3.addConstraint(Sketcher.Constraint("Tangent", 4, 2, 5, 1))
sketch3.addConstraint(Sketcher.Constraint("Tangent", 5, 2, 6, 1))
sketch3.addConstraint(Sketcher.Constraint("Tangent", 6, 2, 7, 1))
sketch3.addConstraint(Sketcher.Constraint("Tangent", 7, 2, 8, 1))
sketch3.addConstraint(Sketcher.Constraint("Tangent", 8, 2, 9, 1))
sketch3.addConstraint(Sketcher.Constraint("Tangent", 9, 2, 10, 1))
sketch3.addConstraint(Sketcher.Constraint("Tangent", 10, 2, 11, 1))
sketch3.addConstraint(Sketcher.Constraint("Tangent", 11, 2, 4, 1))
sketch3.addConstraint(Sketcher.Constraint("Vertical", 0))
sketch3.addConstraint(Sketcher.Constraint("Horizontal", 1))
sketch3.addConstraint(Sketcher.Constraint("Vertical", 2))
sketch3.addConstraint(Sketcher.Constraint("Horizontal", 3))
sketch3.addConstraint(Sketcher.Constraint("Horizontal", 5))
sketch3.addConstraint(Sketcher.Constraint("Vertical", 7))
sketch3.addConstraint(Sketcher.Constraint("Horizontal", 9))
sketch3.addConstraint(Sketcher.Constraint("Vertical", 11))
sketch3.addConstraint(Sketcher.Constraint("Equal", 4, 6))
sketch3.addConstraint(Sketcher.Constraint("Equal", 6, 8))
sketch3.addConstraint(Sketcher.Constraint("Equal", 8, 10))
sketch3.addConstraint(Sketcher.Constraint("Symmetric", 0, 2, 2, 2, -1, 1))
sketch3.addConstraint(Sketcher.Constraint("Radius", 4, Q("5 mm")))
sketch3.addConstraint(Sketcher.Constraint("DistanceX", 1, 2, 1, 1, Q("76 mm")))
sketch3.addConstraint(Sketcher.Constraint("DistanceY", 0, 2, 0, 1, Q("60 mm")))
sketch3.addConstraint(Sketcher.Constraint("DistanceX", 5, 2, 5, 1, Q("59.8 mm")))
sketch3.addConstraint(Sketcher.Constraint("DistanceX", -1, 1, 4, 3, Q("29.9 mm")))
sketch3.addConstraint(Sketcher.Constraint("DistanceY", 8, 3, -1, 1, Q("21.9 mm")))
sketch3.addConstraint(Sketcher.Constraint("DistanceY", 7, 2, 7, 1, Q("43.804317 mm")))
pocket1 = body.newObject("PartDesign::Pocket", "Pocket")
pocket1.Profile = sketch3
pocket1.Length = 2.95
pocket1.Reversed = True

# Sketch on XY plane
sketch4 = body.newObject("Sketcher::SketchObject", "Sketch003")
sketch4.AttachmentSupport = (doc.getObject("XY_Plane"), [""])
sketch4.MapMode = "FlatFace"
sketch4.addGeometry(Part.Circle(Vector(-20.5, 0, 0), Vector(0, 0, 1), 2.5), False)
sketch4.addGeometry(Part.Circle(Vector(20.5, 0, 0), Vector(0, 0, 1), 2.5), False)
sketch4.addGeometry(Part.Circle(Vector(10.2, -17.8, 0), Vector(0, 0, 1), 2.5), False)
sketch4.addGeometry(Part.Circle(Vector(10.2, 17.8, 0), Vector(0, 0, 1), 2.5), False)
sketch4.addGeometry(Part.Circle(Vector(-10.2, 17.8, 0), Vector(0, 0, 1), 2.5), False)
sketch4.addGeometry(Part.Circle(Vector(-10.2, -17.8, 0), Vector(0, 0, 1), 2.5), False)
sketch4.addConstraint(Sketcher.Constraint("Equal", 0, 1))
sketch4.addConstraint(Sketcher.Constraint("Equal", 1, 2))
sketch4.addConstraint(Sketcher.Constraint("Equal", 2, 3))
sketch4.addConstraint(Sketcher.Constraint("Equal", 3, 4))
sketch4.addConstraint(Sketcher.Constraint("Equal", 4, 5))
sketch4.addConstraint(Sketcher.Constraint("Symmetric", 0, 3, 1, 3, -1, 1))
sketch4.addConstraint(Sketcher.Constraint("Symmetric", 2, 3, 4, 3, -1, 1))
sketch4.addConstraint(Sketcher.Constraint("Symmetric", 3, 3, 5, 3, -1, 1))
sketch4.addConstraint(Sketcher.Constraint("Symmetric", 3, 3, 4, 3, -2))
sketch4.addConstraint(Sketcher.Constraint("PointOnObject", 0, 3, -1))
sketch4.addConstraint(Sketcher.Constraint("Diameter", 0, Q("5.1 mm")))
sketch4.addConstraint(Sketcher.Constraint("DistanceX", 0, 3, 1, 3, Q("41 mm")))
sketch4.addConstraint(Sketcher.Constraint("DistanceX", 4, 3, 3, 3, Q("20.5 mm")))
sketch4.addConstraint(Sketcher.Constraint("DistanceY", 2, 3, -1, 1, Q("17.753521 mm")))
pocket2 = body.newObject("PartDesign::Pocket", "Pocket001")
pocket2.Profile = sketch4
pocket2.Type = "ThroughAll"
pocket2.Reversed = True

# Sketch on XY plane
sketch5 = body.newObject("Sketcher::SketchObject", "Sketch004")
sketch5.AttachmentSupport = (doc.getObject("XY_Plane"), [""])
sketch5.MapMode = "FlatFace"
sketch5.addGeometry(Part.Circle(Vector(0, 0, 0), Vector(0, 0, 1), 8), False)
sketch5.addConstraint(Sketcher.Constraint("Coincident", 0, 3, -1, 1))
sketch5.addConstraint(Sketcher.Constraint("Diameter", 0, Q("15 mm")))
pocket3 = body.newObject("PartDesign::Pocket", "Pocket002")
pocket3.Profile = sketch5
pocket3.Type = "ThroughAll"
pocket3.Reversed = True

# Sketch on XY plane
sketch6 = body.newObject("Sketcher::SketchObject", "Sketch005")
sketch6.AttachmentSupport = (doc.getObject("XY_Plane"), [""])
sketch6.MapMode = "FlatFace"
sketch6.addGeometry(Part.Circle(Vector(32.4, 19.4, 0), Vector(0, 0, 1), 1.5), False)
sketch6.addGeometry(Part.Circle(Vector(32.4, -19.4, 0), Vector(0, 0, 1), 1.5), False)
sketch6.addGeometry(Part.Circle(Vector(-32.4, -19.4, 0), Vector(0, 0, 1), 1.5), False)
sketch6.addGeometry(Part.Circle(Vector(-32.4, 17.9, 0), Vector(0, 0, 1), 1.5), False)
sketch6.addConstraint(Sketcher.Constraint("Equal", 0, 1))
sketch6.addConstraint(Sketcher.Constraint("Equal", 1, 2))
sketch6.addConstraint(Sketcher.Constraint("Equal", 2, 3))
sketch6.addConstraint(Sketcher.Constraint("Symmetric", 1, 3, 2, 3, -2))
sketch6.addConstraint(Sketcher.Constraint("Vertical", 2, 3, 3, 3))
sketch6.addConstraint(Sketcher.Constraint("Diameter", 0, Q("3 mm")))
sketch6.addConstraint(Sketcher.Constraint("DistanceX", -1, 1, 0, 3, Q("32.4 mm")))
sketch6.addConstraint(Sketcher.Constraint("DistanceY", 3, 3, 0, 3, Q("1.5 mm")))
sketch6.addConstraint(Sketcher.Constraint("DistanceX", -1, 1, 1, 3, Q("32.4024 mm")))
sketch6.addConstraint(Sketcher.Constraint("DistanceY", 1, 3, -1, 1, Q("19.400309 mm")))
sketch6.addConstraint(Sketcher.Constraint("DistanceY", -1, 1, 0, 3, Q("19.404317 mm")))
pocket4 = body.newObject("PartDesign::Pocket", "Pocket003")
pocket4.Profile = sketch6
pocket4.Type = "ThroughAll"
pocket4.Reversed = True

# Sketch on XY plane
sketch7 = body.newObject("Sketcher::SketchObject", "Sketch006")
sketch7.AttachmentSupport = (doc.getObject("XY_Plane"), [""])
sketch7.MapMode = "FlatFace"
sketch7.addGeometry(Part.Circle(Vector(21.9, 16.9, 0), Vector(0, 0, 1), 2.5), False)
sketch7.addGeometry(Part.Circle(Vector(-21.9, 16.9, 0), Vector(0, 0, 1), 2.5), False)
sketch7.addGeometry(Part.Circle(Vector(21.9, -19.4, 0), Vector(0, 0, 1), 2.5), False)
sketch7.addConstraint(Sketcher.Constraint("Equal", 0, 1))
sketch7.addConstraint(Sketcher.Constraint("Equal", 1, 2))
sketch7.addConstraint(Sketcher.Constraint("Symmetric", 0, 3, 1, 3, -2))
sketch7.addConstraint(Sketcher.Constraint("Vertical", 0, 3, 2, 3))
sketch7.addConstraint(Sketcher.Constraint("Diameter", 0, Q("5 mm")))
sketch7.addConstraint(Sketcher.Constraint("DistanceX", -1, 1, 0, 3, Q("21.9 mm")))
sketch7.addConstraint(Sketcher.Constraint("DistanceY", 2, 3, -1, 1, Q("19.4 mm")))
sketch7.addConstraint(Sketcher.Constraint("DistanceY", -1, 1, 0, 3, Q("16.904317 mm")))
pocket5 = body.newObject("PartDesign::Pocket", "Pocket004")
pocket5.Profile = sketch7
pocket5.Type = "ThroughAll"
pocket5.Reversed = True

# Sketch on YZ plane
sketch8 = body.newObject("Sketcher::SketchObject", "Sketch007")
sketch8.AttachmentSupport = (doc.getObject("YZ_Plane"), [""])
sketch8.MapMode = "FlatFace"
sketch8.AttachmentOffset = App.Placement(Vector(0, 0, 11.15), App.Rotation())
sketch8.addGeometry(Part.LineSegment(Vector(-8.8, 2, 0), Vector(-8.8, 0, 0)), False)
sketch8.addGeometry(Part.LineSegment(Vector(-8.8, 0, 0), Vector(-13.8, 0, 0)), False)
sketch8.addGeometry(Part.LineSegment(Vector(-13.8, 0, 0), Vector(-11.8, 2, 0)), False)
sketch8.addGeometry(Part.LineSegment(Vector(-11.8, 2, 0), Vector(-8.8, 2, 0)), False)
sketch8.addConstraint(Sketcher.Constraint("Coincident", 0, 2, 1, 1))
sketch8.addConstraint(Sketcher.Constraint("Coincident", 1, 2, 2, 1))
sketch8.addConstraint(Sketcher.Constraint("Coincident", 2, 2, 3, 1))
sketch8.addConstraint(Sketcher.Constraint("Coincident", 3, 2, 0, 1))
sketch8.addConstraint(Sketcher.Constraint("Vertical", 0))
sketch8.addConstraint(Sketcher.Constraint("Horizontal", 1))
sketch8.addConstraint(Sketcher.Constraint("Horizontal", 3))
sketch8.addConstraint(Sketcher.Constraint("PointOnObject", 0, 2, -1))
sketch8.addConstraint(Sketcher.Constraint("DistanceX", 1, 2, 1, 1, Q("5 mm")))
sketch8.addConstraint(Sketcher.Constraint("DistanceX", 3, 1, 3, 2, Q("3 mm")))
sketch8.addConstraint(Sketcher.Constraint("DistanceY", 0, 2, 0, 1, Q("2 mm")))
sketch8.addConstraint(Sketcher.Constraint("DistanceX", 0, 2, -1, 1, Q("8.780488 mm")))
pocket6 = body.newObject("PartDesign::Pocket", "Pocket005")
pocket6.Profile = sketch8
pocket6.Length = 4
pocket6.Reversed = True

# Sketch on an angled plane
sketch9 = body.newObject("Sketcher::SketchObject", "Sketch008")
sketch9.Placement = App.Placement(Vector(-5.575, 9.656183, 0), App.Rotation(Vector(-0.866025404, -0.5, 0), Vector(0, 0, -1), Vector(0.5, -0.866025404, 0), "ZXY"))
sketch9.addGeometry(Part.LineSegment(Vector(-8.8, -2, 0), Vector(-8.8, 0, 0)), False)
sketch9.addGeometry(Part.LineSegment(Vector(-8.8, 0, 0), Vector(-13.8, 0, 0)), False)
sketch9.addGeometry(Part.LineSegment(Vector(-13.8, 0, 0), Vector(-11.8, -2, 0)), False)
sketch9.addGeometry(Part.LineSegment(Vector(-11.8, -2, 0), Vector(-8.8, -2, 0)), False)
sketch9.addConstraint(Sketcher.Constraint("Coincident", 0, 2, 1, 1))
sketch9.addConstraint(Sketcher.Constraint("Coincident", 1, 2, 2, 1))
sketch9.addConstraint(Sketcher.Constraint("Coincident", 2, 2, 3, 1))
sketch9.addConstraint(Sketcher.Constraint("Coincident", 3, 2, 0, 1))
sketch9.addConstraint(Sketcher.Constraint("Vertical", 0))
sketch9.addConstraint(Sketcher.Constraint("Horizontal", 1))
sketch9.addConstraint(Sketcher.Constraint("Horizontal", 3))
sketch9.addConstraint(Sketcher.Constraint("PointOnObject", 0, 2, -1))
sketch9.addConstraint(Sketcher.Constraint("DistanceX", 1, 2, 1, 1, Q("5 mm")))
sketch9.addConstraint(Sketcher.Constraint("DistanceX", 3, 1, 3, 2, Q("3 mm")))
sketch9.addConstraint(Sketcher.Constraint("DistanceY", 0, 1, 0, 2, Q("2 mm")))
sketch9.addConstraint(Sketcher.Constraint("DistanceX", 0, 2, -1, 1, Q("8.780488 mm")))
pocket7 = body.newObject("PartDesign::Pocket", "Pocket006")
pocket7.Profile = sketch9
pocket7.Length = 4

# Sketch on an angled plane
sketch10 = body.newObject("Sketcher::SketchObject", "Sketch009")
sketch10.Placement = App.Placement(Vector(-5.575, -9.656183, 0), App.Rotation(Vector(0.866025404, -0.5, 0), Vector(0, 0, -1), Vector(0.5, 0.866025404, 0), "ZXY"))
sketch10.addGeometry(Part.LineSegment(Vector(-8.8, -2, 0), Vector(-8.8, 0, 0)), False)
sketch10.addGeometry(Part.LineSegment(Vector(-8.8, 0, 0), Vector(-13.8, 0, 0)), False)
sketch10.addGeometry(Part.LineSegment(Vector(-13.8, 0, 0), Vector(-11.8, -2, 0)), False)
sketch10.addGeometry(Part.LineSegment(Vector(-11.8, -2, 0), Vector(-8.8, -2, 0)), False)
sketch10.addConstraint(Sketcher.Constraint("Coincident", 0, 2, 1, 1))
sketch10.addConstraint(Sketcher.Constraint("Coincident", 1, 2, 2, 1))
sketch10.addConstraint(Sketcher.Constraint("Coincident", 2, 2, 3, 1))
sketch10.addConstraint(Sketcher.Constraint("Coincident", 3, 2, 0, 1))
sketch10.addConstraint(Sketcher.Constraint("Vertical", 0))
sketch10.addConstraint(Sketcher.Constraint("Horizontal", 1))
sketch10.addConstraint(Sketcher.Constraint("Horizontal", 3))
sketch10.addConstraint(Sketcher.Constraint("PointOnObject", 0, 2, -1))
sketch10.addConstraint(Sketcher.Constraint("DistanceX", 1, 2, 1, 1, Q("5 mm")))
sketch10.addConstraint(Sketcher.Constraint("DistanceX", 3, 1, 3, 2, Q("3 mm")))
sketch10.addConstraint(Sketcher.Constraint("DistanceY", 0, 1, 0, 2, Q("2 mm")))
sketch10.addConstraint(Sketcher.Constraint("DistanceX", 0, 2, -1, 1, Q("8.780488 mm")))
pocket8 = body.newObject("PartDesign::Pocket", "Pocket007")
pocket8.Profile = sketch10
pocket8.Length = 4

doc.recompute()
